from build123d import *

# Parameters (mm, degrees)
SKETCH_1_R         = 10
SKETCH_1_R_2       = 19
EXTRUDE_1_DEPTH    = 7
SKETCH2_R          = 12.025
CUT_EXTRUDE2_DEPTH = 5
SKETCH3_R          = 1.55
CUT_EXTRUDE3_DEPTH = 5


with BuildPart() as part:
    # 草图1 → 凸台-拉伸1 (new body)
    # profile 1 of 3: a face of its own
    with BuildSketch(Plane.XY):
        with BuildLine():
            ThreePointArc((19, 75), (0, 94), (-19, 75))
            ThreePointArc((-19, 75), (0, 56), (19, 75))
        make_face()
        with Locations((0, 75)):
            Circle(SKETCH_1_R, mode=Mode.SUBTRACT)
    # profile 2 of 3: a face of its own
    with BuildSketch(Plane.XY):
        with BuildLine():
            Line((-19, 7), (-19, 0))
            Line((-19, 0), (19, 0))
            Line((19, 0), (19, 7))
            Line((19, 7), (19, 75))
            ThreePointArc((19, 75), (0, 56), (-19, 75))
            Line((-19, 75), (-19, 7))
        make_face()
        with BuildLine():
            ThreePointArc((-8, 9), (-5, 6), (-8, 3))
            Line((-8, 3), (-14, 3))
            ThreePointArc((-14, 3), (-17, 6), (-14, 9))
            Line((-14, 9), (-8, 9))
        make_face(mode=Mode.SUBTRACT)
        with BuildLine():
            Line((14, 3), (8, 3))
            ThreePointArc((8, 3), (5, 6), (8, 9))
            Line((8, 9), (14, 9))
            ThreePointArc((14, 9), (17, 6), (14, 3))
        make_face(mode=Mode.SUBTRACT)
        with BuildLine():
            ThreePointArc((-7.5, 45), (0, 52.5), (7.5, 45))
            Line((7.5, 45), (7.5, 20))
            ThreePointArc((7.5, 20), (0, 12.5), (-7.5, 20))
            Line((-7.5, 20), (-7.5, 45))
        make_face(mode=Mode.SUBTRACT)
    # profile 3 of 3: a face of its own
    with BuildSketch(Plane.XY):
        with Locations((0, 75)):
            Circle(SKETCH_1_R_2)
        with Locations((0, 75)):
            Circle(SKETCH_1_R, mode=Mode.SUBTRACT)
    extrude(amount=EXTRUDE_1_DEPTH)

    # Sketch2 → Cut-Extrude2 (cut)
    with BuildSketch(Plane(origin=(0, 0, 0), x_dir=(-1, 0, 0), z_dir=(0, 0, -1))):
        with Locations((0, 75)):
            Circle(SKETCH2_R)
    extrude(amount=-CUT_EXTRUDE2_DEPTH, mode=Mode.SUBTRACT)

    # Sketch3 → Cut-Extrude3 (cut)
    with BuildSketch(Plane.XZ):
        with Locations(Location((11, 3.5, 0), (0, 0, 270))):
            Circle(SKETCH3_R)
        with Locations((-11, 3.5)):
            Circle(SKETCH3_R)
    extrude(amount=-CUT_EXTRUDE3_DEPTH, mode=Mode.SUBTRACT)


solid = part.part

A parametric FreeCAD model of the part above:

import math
import FreeCAD as App
import Part
import Sketcher

V = App.Vector

doc = App.newDocument("Part")
body = doc.addObject("PartDesign::Body", "Body")

# Sketch on XY plane
sketch1 = body.newObject("Sketcher::SketchObject", "Sketch")
sketch1.AttachmentSupport = (doc.getObject("XY_Plane"), [""])
sketch1.MapMode = "FlatFace"
sketch1.addGeometry([
    Part.ArcOfCircle(Part.Circle(V(0, 75, 0), V(0, 0, 1), 19), math.radians(0), math.radians(180)),  # 0
    Part.LineSegment(V(-19, 75, 0), V(-19, 0, 0)),  # 1
    Part.LineSegment(V(-19, 0, 0), V(19, 0, 0)),  # 2
    Part.LineSegment(V(19, 0, 0), V(19, 75, 0)),  # 3
    Part.Circle(V(0, 75, 0), V(0, 0, 1), 10),  # 4
    Part.ArcOfCircle(Part.Circle(V(0, 45, 0), V(0, 0, 1), 7.5), math.radians(0), math.radians(180)),  # 5
    Part.LineSegment(V(7.5, 45, 0), V(7.5, 20, 0)),  # 6
    Part.ArcOfCircle(Part.Circle(V(0, 20, 0), V(0, 0, 1), 7.5), math.radians(180), math.radians(360)),  # 7
    Part.LineSegment(V(-7.5, 20, 0), V(-7.5, 45, 0)),  # 8
    Part.LineSegment(V(-14, 9, 0), V(-8, 9, 0)),  # 9
    Part.ArcOfCircle(Part.Circle(V(-8, 6, 0), V(0, 0, 1), 3), math.radians(-90), math.radians(90)),  # 10
    Part.LineSegment(V(-8, 3, 0), V(-14, 3, 0)),  # 11
    Part.ArcOfCircle(Part.Circle(V(-14, 6, 0), V(0, 0, 1), 3), math.radians(90), math.radians(270)),  # 12
    Part.ArcOfCircle(Part.Circle(V(14, 6, 0), V(0, 0, 1), 3), math.radians(-90), math.radians(90)),  # 13
    Part.LineSegment(V(14, 3, 0), V(8, 3, 0)),  # 14
    Part.ArcOfCircle(Part.Circle(V(8, 6, 0), V(0, 0, 1), 3), math.radians(90), math.radians(270)),  # 15
    Part.LineSegment(V(8, 9, 0), V(14, 9, 0)),  # 16
], False)
sketch1.addConstraint([
    Sketcher.Constraint("Tangent", 0, 2, 1, 1),
    Sketcher.Constraint("Coincident", 1, 2, 2, 1),
    Sketcher.Constraint("Coincident", 2, 2, 3, 1),
    Sketcher.Constraint("Tangent", 3, 2, 0, 1),
    Sketcher.Constraint("Tangent", 5, 1, 6, 1),
    Sketcher.Constraint("Tangent", 6, 2, 7, 2),
    Sketcher.Constraint("Tangent", 7, 1, 8, 1),
    Sketcher.Constraint("Tangent", 8, 2, 5, 2),
    Sketcher.Constraint("Tangent", 9, 2, 10, 2),
    Sketcher.Constraint("Tangent", 10, 1, 11, 1),
    Sketcher.Constraint("Tangent", 11, 2, 12, 2),
    Sketcher.Constraint("Tangent", 12, 1, 9, 1),
    Sketcher.Constraint("Tangent", 13, 1, 14, 1),
    Sketcher.Constraint("Tangent", 14, 2, 15, 2),
    Sketcher.Constraint("Tangent", 15, 1, 16, 1),
    Sketcher.Constraint("Tangent", 16, 2, 13, 2),
    Sketcher.Constraint("Vertical", 1),
    Sketcher.Constraint("Horizontal", 2),
    Sketcher.Constraint("Vertical", 3),
    Sketcher.Constraint("Vertical", 6),
    Sketcher.Constraint("Vertical", 8),
    Sketcher.Constraint("Horizontal", 9),
    Sketcher.Constraint("Horizontal", 11),
    Sketcher.Constraint("Horizontal", 14),
    Sketcher.Constraint("Horizontal", 16),
    Sketcher.Constraint("Coincident", 4, 3, 0, 3),
    Sketcher.Constraint("Equal", 12, 13),
    Sketcher.Constraint("Symmetric", 1, 2, 2, 2, -1, 1),
    Sketcher.Constraint("Symmetric", 12, 3, 13, 3, -2),
    Sketcher.Constraint("PointOnObject", 5, 3, -2),
    Sketcher.Constraint("Equal", 11, 14),
    Sketcher.Constraint("Diameter", 4, 20.0),
    Sketcher.Constraint("Radius", 0, 19.0),
    Sketcher.Constraint("Radius", 10, 3.0),
    Sketcher.Constraint("Radius", 5, 7.5),
    Sketcher.Constraint("DistanceX", 9, 1, 9, 2, 6.0),
    Sketcher.Constraint("DistanceY", 1, 2, 1, 1, 75.0),
    Sketcher.Constraint("DistanceY", 6, 2, 6, 1, 25.0),
    Sketcher.Constraint("DistanceY", -1, 1, 5, 3, 45.0),
    Sketcher.Constraint("DistanceX", 10, 3, -1, 1, 8.0),
    Sketcher.Constraint("DistanceY", -1, 1, 10, 3, 6.0),
])
pad1 = body.newObject("PartDesign::Pad", "Pad")
pad1.Profile = sketch1
pad1.Length = 7

# Sketch on XY plane
sketch2 = body.newObject("Sketcher::SketchObject", "Sketch001")
sketch2.AttachmentSupport = (doc.getObject("XY_Plane"), [""])
sketch2.MapMode = "FlatFace"
sketch2.addGeometry(Part.Circle(V(0, 75, 0), V(0, 0, 1), 12), False)
sketch2.addConstraint([
    Sketcher.Constraint("PointOnObject", 0, 3, -2),
    Sketcher.Constraint("Diameter", 0, 24.05),
    Sketcher.Constraint("DistanceY", -1, 1, 0, 3, 75.0),
])
pocket1 = body.newObject("PartDesign::Pocket", "Pocket")
pocket1.Profile = sketch2
pocket1.Length = 5
pocket1.Reversed = True

# Sketch on XZ plane
sketch3 = body.newObject("Sketcher::SketchObject", "Sketch002")
sketch3.AttachmentSupport = (doc.getObject("XZ_Plane"), [""])
sketch3.MapMode = "FlatFace"
sketch3.addGeometry([
    Part.Circle(V(11, 3.5, 0), V(0, 0, 1), 1.6),
    Part.Circle(V(-11, 3.5, 0), V(0, 0, 1), 1.6),
], False)
sketch3.addConstraint([
    Sketcher.Constraint("Equal", 0, 1),
    Sketcher.Constraint("Symmetric", 0, 3, 1, 3, -2),
    Sketcher.Constraint("Diameter", 0, 3.1),
    Sketcher.Constraint("DistanceX", -1, 1, 0, 3, 11.0),
    Sketcher.Constraint("DistanceY", -1, 1, 0, 3, 3.5),
])
pocket2 = body.newObject("PartDesign::Pocket", "Pocket001")
pocket2.Profile = sketch3
pocket2.Length = 5

doc.recompute()
